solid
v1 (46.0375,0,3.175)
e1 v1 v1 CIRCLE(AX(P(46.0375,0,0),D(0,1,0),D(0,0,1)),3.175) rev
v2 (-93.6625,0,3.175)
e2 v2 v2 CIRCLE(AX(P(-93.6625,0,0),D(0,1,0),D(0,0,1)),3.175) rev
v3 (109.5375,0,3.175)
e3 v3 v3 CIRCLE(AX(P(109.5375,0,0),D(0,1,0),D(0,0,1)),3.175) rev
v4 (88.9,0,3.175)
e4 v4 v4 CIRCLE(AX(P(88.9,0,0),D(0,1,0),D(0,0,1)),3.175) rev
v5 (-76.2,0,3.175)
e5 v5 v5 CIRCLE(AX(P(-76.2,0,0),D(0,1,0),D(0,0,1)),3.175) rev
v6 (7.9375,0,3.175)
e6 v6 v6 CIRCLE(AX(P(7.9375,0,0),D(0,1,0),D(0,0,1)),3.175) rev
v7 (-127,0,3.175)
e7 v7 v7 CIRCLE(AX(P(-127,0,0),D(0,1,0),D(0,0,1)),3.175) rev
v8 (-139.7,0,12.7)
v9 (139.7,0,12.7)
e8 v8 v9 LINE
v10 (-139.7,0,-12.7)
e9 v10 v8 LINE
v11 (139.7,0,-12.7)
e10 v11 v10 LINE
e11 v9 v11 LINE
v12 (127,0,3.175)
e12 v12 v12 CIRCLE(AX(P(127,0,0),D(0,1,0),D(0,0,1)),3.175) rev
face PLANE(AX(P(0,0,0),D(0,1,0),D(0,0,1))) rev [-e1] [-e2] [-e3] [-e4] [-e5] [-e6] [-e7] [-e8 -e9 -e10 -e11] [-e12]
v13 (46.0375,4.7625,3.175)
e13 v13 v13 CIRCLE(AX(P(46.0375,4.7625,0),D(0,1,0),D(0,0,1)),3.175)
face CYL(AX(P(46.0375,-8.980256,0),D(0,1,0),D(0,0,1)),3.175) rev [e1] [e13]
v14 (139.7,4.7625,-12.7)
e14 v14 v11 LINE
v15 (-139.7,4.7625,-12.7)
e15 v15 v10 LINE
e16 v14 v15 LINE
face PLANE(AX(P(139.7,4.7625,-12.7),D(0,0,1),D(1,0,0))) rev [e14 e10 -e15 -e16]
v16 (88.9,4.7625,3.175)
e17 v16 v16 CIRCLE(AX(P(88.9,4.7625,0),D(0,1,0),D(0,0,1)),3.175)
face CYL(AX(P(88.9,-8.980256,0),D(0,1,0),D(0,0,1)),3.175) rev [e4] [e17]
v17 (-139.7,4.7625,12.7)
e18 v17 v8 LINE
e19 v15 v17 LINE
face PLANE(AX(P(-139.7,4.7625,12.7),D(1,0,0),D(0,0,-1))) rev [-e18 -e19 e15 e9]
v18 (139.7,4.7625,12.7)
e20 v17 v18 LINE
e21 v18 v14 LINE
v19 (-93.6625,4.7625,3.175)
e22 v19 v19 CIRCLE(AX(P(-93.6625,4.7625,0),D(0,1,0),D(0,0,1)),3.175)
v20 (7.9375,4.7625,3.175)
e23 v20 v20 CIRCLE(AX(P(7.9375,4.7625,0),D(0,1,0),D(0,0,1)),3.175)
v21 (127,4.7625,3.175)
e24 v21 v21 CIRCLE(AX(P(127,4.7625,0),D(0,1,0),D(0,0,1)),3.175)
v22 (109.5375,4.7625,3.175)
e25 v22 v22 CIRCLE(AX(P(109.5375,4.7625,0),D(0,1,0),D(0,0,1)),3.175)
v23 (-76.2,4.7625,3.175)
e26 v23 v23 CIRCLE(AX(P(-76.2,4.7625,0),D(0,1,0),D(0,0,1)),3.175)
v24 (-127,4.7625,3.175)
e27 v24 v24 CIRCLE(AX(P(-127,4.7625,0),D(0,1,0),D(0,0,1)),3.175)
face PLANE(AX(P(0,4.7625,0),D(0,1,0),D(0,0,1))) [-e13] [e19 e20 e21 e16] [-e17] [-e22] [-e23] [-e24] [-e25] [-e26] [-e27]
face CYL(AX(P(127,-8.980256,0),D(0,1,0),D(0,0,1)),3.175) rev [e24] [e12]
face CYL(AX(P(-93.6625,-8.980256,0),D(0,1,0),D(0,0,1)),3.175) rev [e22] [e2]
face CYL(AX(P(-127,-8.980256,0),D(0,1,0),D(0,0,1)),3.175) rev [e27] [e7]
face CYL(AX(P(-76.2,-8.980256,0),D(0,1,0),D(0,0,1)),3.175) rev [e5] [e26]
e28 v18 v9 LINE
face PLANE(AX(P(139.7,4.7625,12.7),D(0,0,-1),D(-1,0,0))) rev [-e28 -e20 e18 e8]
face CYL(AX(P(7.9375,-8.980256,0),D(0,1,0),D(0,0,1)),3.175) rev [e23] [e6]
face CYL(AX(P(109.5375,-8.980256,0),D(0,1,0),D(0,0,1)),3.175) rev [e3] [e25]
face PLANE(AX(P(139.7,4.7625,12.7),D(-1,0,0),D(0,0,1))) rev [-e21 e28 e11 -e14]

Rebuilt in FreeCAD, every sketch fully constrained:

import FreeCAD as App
import Part
import Sketcher
from FreeCAD import Vector
Q = App.Units.Quantity

doc = App.newDocument("Part")
body = doc.addObject("PartDesign::Body", "Body")

# Sketch on XZ plane
sketch1 = body.newObject("Sketcher::SketchObject", "Sketch")
sketch1.AttachmentSupport = (doc.getObject("XZ_Plane"), [""])
sketch1.MapMode = "FlatFace"
sketch1.addGeometry([
    Part.LineSegment(Vector(-139.7, -12.7, 0), Vector(-139.7, 12.7, 0)),
    Part.LineSegment(Vector(-139.7, 12.7, 0), Vector(139.7, 12.7, 0)),
    Part.LineSegment(Vector(139.7, 12.7, 0), Vector(139.7, -12.7, 0)),
    Part.LineSegment(Vector(139.7, -12.7, 0), Vector(-139.7, -12.7, 0)),
], False)
sketch1.addConstraint([
    Sketcher.Constraint("Coincident", 0, 2, 1, 1),
    Sketcher.Constraint("Coincident", 1, 2, 2, 1),
    Sketcher.Constraint("Coincident", 2, 2, 3, 1),
    Sketcher.Constraint("Coincident", 3, 2, 0, 1),
    Sketcher.Constraint("Vertical", 0),
    Sketcher.Constraint("Horizontal", 1),
    Sketcher.Constraint("Vertical", 2),
    Sketcher.Constraint("Horizontal", 3),
    Sketcher.Constraint("Symmetric", 0, 2, 2, 2, -1, 1),
    Sketcher.Constraint("DistanceX", 1, 1, 1, 2, Q("11 in")),
    Sketcher.Constraint("DistanceY", 0, 1, 0, 2, Q("1 in")),
])
pad1 = body.newObject("PartDesign::Pad", "Pad")
pad1.Profile = sketch1
pad1.Length = Q("0.1875 in")
pad1.Reversed = True

# Sketch on XZ plane
sketch2 = body.newObject("Sketcher::SketchObject", "Sketch001")
sketch2.AttachmentSupport = (doc.getObject("XZ_Plane"), [""])
sketch2.MapMode = "FlatFace"
sketch2.AttachmentOffset = App.Placement(Vector(0, 0, -0.1875 * 25.4), App.Rotation())
sketch2.addGeometry([
    Part.Circle(Vector(127, 0, 0), Vector(0, 0, 1), 3.175),  # 0
    Part.Circle(Vector(109.5375, 0, 0), Vector(0, 0, 1), 3.175),  # 1
    Part.Circle(Vector(88.9, 0, 0), Vector(0, 0, 1), 3.175),  # 2
    Part.Circle(Vector(46.0375, 0, 0), Vector(0, 0, 1), 3.175),  # 3
    Part.Circle(Vector(7.9375, 0, 0), Vector(0, 0, 1), 3.175),  # 4
    Part.Circle(Vector(-76.2, 0, 0), Vector(0, 0, 1), 3.175),  # 5
    Part.Circle(Vector(-127, 0, 0), Vector(0, 0, 1), 3.175),  # 6
    Part.Circle(Vector(-93.6625, 0, 0), Vector(0, 0, 1), 3.175),  # 7
], False)
sketch2.addConstraint([
    Sketcher.Constraint("Equal", 0, 1),
    Sketcher.Constraint("Equal", 1, 2),
    Sketcher.Constraint("Equal", 2, 3),
    Sketcher.Constraint("Equal", 3, 4),
    Sketcher.Constraint("Equal", 4, 5),
    Sketcher.Constraint("Equal", 5, 6),
    Sketcher.Constraint("Equal", 6, 7),
    Sketcher.Constraint("Symmetric", 0, 3, 6, 3, -1, 1),
    Sketcher.Constraint("PointOnObject", 0, 3, -1),
    Sketcher.Constraint("PointOnObject", 1, 3, -1),
    Sketcher.Constraint("PointOnObject", 2, 3, -1),
    Sketcher.Constraint("PointOnObject", 3, 3, -1),
    Sketcher.Constraint("PointOnObject", 4, 3, -1),
    Sketcher.Constraint("PointOnObject", 5, 3, -1),
    Sketcher.Constraint("PointOnObject", 7, 3, -1),
    Sketcher.Constraint("Diameter", 0, Q("0.25 in")),
    Sketcher.Constraint("DistanceX", -1, 1, 0, 3, Q("5 in")),
    Sketcher.Constraint("DistanceX", 5, 3, -1, 1, Q("3 in")),
    Sketcher.Constraint("DistanceX", 4, 3, 1, 3, Q("4 in")),
    Sketcher.Constraint("DistanceX", 7, 3, 4, 3, Q("4 in")),
    Sketcher.Constraint("DistanceX", -1, 1, 2, 3, Q("3.5 in")),
    Sketcher.Constraint("DistanceX", 3, 3, 1, 3, Q("2.5 in")),
    Sketcher.Constraint("DistanceX", -1, 1, 1, 3, Q("4.3125 in")),
])
pocket1 = body.newObject("PartDesign::Pocket", "Pocket")
pocket1.Profile = sketch2
pocket1.Length = Q("0.1875 in")
pocket1.Reversed = True

doc.recompute()
